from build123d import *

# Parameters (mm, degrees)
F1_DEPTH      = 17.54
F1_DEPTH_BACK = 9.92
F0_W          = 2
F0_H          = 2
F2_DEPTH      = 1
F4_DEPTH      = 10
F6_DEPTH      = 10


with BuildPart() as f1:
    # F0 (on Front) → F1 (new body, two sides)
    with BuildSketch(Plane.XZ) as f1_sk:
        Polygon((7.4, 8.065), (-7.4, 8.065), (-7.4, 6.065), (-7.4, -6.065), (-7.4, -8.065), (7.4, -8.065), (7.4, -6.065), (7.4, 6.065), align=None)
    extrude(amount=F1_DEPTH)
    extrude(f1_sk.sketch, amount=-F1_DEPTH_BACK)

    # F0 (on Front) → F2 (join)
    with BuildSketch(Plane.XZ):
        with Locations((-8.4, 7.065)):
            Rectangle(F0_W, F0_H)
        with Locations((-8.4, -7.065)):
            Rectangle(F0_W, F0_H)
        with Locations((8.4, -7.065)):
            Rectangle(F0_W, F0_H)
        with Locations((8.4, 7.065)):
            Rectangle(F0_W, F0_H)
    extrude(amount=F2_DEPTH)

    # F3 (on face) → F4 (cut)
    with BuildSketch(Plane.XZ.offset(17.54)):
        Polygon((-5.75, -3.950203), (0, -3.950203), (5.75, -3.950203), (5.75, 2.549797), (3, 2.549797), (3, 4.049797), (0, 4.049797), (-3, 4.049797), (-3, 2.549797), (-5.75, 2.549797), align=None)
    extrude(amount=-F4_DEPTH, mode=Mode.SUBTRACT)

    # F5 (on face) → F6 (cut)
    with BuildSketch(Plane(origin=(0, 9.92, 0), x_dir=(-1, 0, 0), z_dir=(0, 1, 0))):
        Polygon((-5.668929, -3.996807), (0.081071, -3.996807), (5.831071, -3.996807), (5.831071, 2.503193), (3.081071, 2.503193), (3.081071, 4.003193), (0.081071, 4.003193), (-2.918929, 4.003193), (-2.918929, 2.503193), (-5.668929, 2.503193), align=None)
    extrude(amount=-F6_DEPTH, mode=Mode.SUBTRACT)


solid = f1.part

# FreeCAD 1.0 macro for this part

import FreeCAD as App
import Part
import Sketcher
from FreeCAD import Vector


def add_polygon(sketch, points):
    """Adds a closed chain of lines whose ends are joined by coincident constraints."""
    first, n = sketch.GeometryCount, len(points)
    for a, b in zip(points, points[1:] + points[:1]):
        sketch.addGeometry(Part.LineSegment(App.Vector(*a, 0), App.Vector(*b, 0)), False)
    for i in range(n):
        sketch.addConstraint(Sketcher.Constraint("Coincident", first + i, 2, first + (i + 1) % n, 1))

doc = App.newDocument("Part")
params = doc.addObject("Spreadsheet::Sheet", "Params")
for row, (alias, value) in enumerate([
    ("sketch1_width", "14.8 mm"),
    ("sketch1_height", "16.13 mm"),
    ("pad1_length", "17.54 mm"),
    ("pad1_length2", "9.92 mm"),
    ("sketch2_width", "2 mm"),
    ("pad2_length", "1 mm"),
    ("sketch3_width", "6 mm"),
    ("sketch3_width2", "11.5 mm"),
    ("sketch3_height", "6.5 mm"),
    ("sketch3_height2", "1.5 mm"),
    ("pocket1_length", "10 mm"),
    ("sketch4_width", "6 mm"),
    ("sketch4_width2", "11.5 mm"),
    ("sketch4_height", "6.5 mm"),
    ("sketch4_height2", "1.5 mm"),
    ("pocket2_length", "10 mm"),
], start=1):
    params.set(f"A{row}", alias)
    params.set(f"B{row}", "=" + value)
    params.setAlias(f"B{row}", alias)

body = doc.addObject("PartDesign::Body", "Body")

# Sketch on XZ plane
sketch1 = body.newObject("Sketcher::SketchObject", "Sketch")
sketch1.AttachmentSupport = (doc.getObject("XZ_Plane"), [""])
sketch1.MapMode = "FlatFace"
add_polygon(sketch1, [(7.4, 8.065), (-7.4, 8.065), (-7.4, -8.065), (7.4, -8.065)])  # lines 0-3
sketch1.addConstraint([
    Sketcher.Constraint("Horizontal", 0),
    Sketcher.Constraint("Vertical", 1),
    Sketcher.Constraint("Horizontal", 2),
    Sketcher.Constraint("Vertical", 3),
    Sketcher.Constraint("Symmetric", 0, 2, 2, 2, -1, 1),
    Sketcher.Constraint("DistanceX", 0, 2, 0, 1, 14.8),
    Sketcher.Constraint("DistanceY", 1, 2, 1, 1, 16.13),
])
sketch1.setExpression("Constraints[9]", "Params.sketch1_width")
sketch1.setExpression("Constraints[10]", "Params.sketch1_height")
pad1 = body.newObject("PartDesign::Pad", "Pad")
pad1.Profile = sketch1
pad1.Type = "TwoLengths"
pad1.setExpression("Length", "Params.pad1_length")
pad1.setExpression("Length2", "Params.pad1_length2")

# Sketch on XZ plane
sketch2 = body.newObject("Sketcher::SketchObject", "Sketch001")
sketch2.AttachmentSupport = (doc.getObject("XZ_Plane"), [""])
sketch2.MapMode = "FlatFace"
add_polygon(sketch2, [(-9.4, 8.065), (-9.4, 6.065), (-7.4, 6.065), (-7.4, 8.065)])  # lines 0-3
add_polygon(sketch2, [(-9.4, -6.065), (-9.4, -8.065), (-7.4, -8.065), (-7.4, -6.065)])  # lines 4-7
add_polygon(sketch2, [(7.4, -6.065), (7.4, -8.065), (9.4, -8.065), (9.4, -6.065)])  # lines 8-11
add_polygon(sketch2, [(7.4, 8.065), (7.4, 6.065), (9.4, 6.065), (9.4, 8.065)])  # lines 12-15
sketch2.addConstraint([
    Sketcher.Constraint("Vertical", 0),
    Sketcher.Constraint("Horizontal", 1),
    Sketcher.Constraint("Vertical", 2),
    Sketcher.Constraint("Horizontal", 3),
    Sketcher.Constraint("Vertical", 4),
    Sketcher.Constraint("Horizontal", 5),
    Sketcher.Constraint("Vertical", 6),
    Sketcher.Constraint("Horizontal", 7),
    Sketcher.Constraint("Vertical", 8),
    Sketcher.Constraint("Horizontal", 9),
    Sketcher.Constraint("Vertical", 10),
    Sketcher.Constraint("Horizontal", 11),
    Sketcher.Constraint("Vertical", 12),
    Sketcher.Constraint("Horizontal", 13),
    Sketcher.Constraint("Vertical", 14),
    Sketcher.Constraint("Horizontal", 15),
    Sketcher.Constraint("Symmetric", 2, 2, 8, 2, -1, 1),
    Sketcher.Constraint("Symmetric", 0, 2, 10, 2, -1, 1),
    Sketcher.Constraint("Symmetric", 6, 2, 12, 2, -1, 1),
    Sketcher.Constraint("Symmetric", 4, 2, 14, 2, -1, 1),
    Sketcher.Constraint("Symmetric", 5, 2, 8, 2, -2),
    Sketcher.Constraint("Symmetric", 7, 2, 10, 2, -2),
    Sketcher.Constraint("Equal", 15, 0),
    Sketcher.Constraint("DistanceX", 1, 1, 1, 2, 2.0),
    Sketcher.Constraint("DistanceX", 0, 2, -1, 1, 9.4),
    Sketcher.Constraint("DistanceY", 4, 2, 0, 2, 14.13),
])
sketch2.setExpression("Constraints[39]", "Params.sketch2_width")
pad2 = body.newObject("PartDesign::Pad", "Pad001")
pad2.Profile = sketch2
pad2.setExpression("Length", "Params.pad2_length")

# Sketch on XZ plane
sketch3 = body.newObject("Sketcher::SketchObject", "Sketch002")
sketch3.AttachmentSupport = (doc.getObject("XZ_Plane"), [""])
sketch3.MapMode = "FlatFace"
sketch3.AttachmentOffset = App.Placement(Vector(0, 0, 17.54), App.Rotation())
add_polygon(sketch3, [(-5.75, -3.950203), (5.75, -3.950203), (5.75, 2.549797), (3, 2.549797), (3, 4.049797), (-3, 4.049797), (-3, 2.549797), (-5.75, 2.549797)])  # lines 0-7
sketch3.addConstraint([
    Sketcher.Constraint("Horizontal", 0),
    Sketcher.Constraint("Vertical", 1),
    Sketcher.Constraint("Horizontal", 2),
    Sketcher.Constraint("Vertical", 3),
    Sketcher.Constraint("Horizontal", 4),
    Sketcher.Constraint("Vertical", 5),
    Sketcher.Constraint("Horizontal", 6),
    Sketcher.Constraint("Vertical", 7),
    Sketcher.Constraint("Symmetric", 2, 2, 5, 2, -2),
    Sketcher.Constraint("Equal", 2, 6),
    Sketcher.Constraint("DistanceX", 4, 2, 4, 1, 6.0),
    Sketcher.Constraint("DistanceX", 0, 1, 0, 2, 11.5),
    Sketcher.Constraint("DistanceY", 1, 1, 1, 2, 6.5),
    Sketcher.Constraint("DistanceY", 3, 1, 3, 2, 1.5),
    Sketcher.Constraint("DistanceY", 0, 2, -1, 1, 3.950203),
])
sketch3.setExpression("Constraints[18]", "Params.sketch3_width")
sketch3.setExpression("Constraints[19]", "Params.sketch3_width2")
sketch3.setExpression("Constraints[20]", "Params.sketch3_height")
sketch3.setExpression("Constraints[21]", "Params.sketch3_height2")
pocket1 = body.newObject("PartDesign::Pocket", "Pocket")
pocket1.Profile = sketch3
pocket1.setExpression("Length", "Params.pocket1_length")

# Sketch on XZ plane
sketch4 = body.newObject("Sketcher::SketchObject", "Sketch003")
sketch4.AttachmentSupport = (doc.getObject("XZ_Plane"), [""])
sketch4.MapMode = "FlatFace"
sketch4.AttachmentOffset = App.Placement(Vector(0, 0, -9.92), App.Rotation())
add_polygon(sketch4, [(5.668929, -3.996807), (-5.831071, -3.996807), (-5.831071, 2.503193), (-3.081071, 2.503193), (-3.081071, 4.003193), (2.918929, 4.003193), (2.918929, 2.503193), (5.668929, 2.503193)])  # lines 0-7
sketch4.addConstraint([
    Sketcher.Constraint("Horizontal", 0),
    Sketcher.Constraint("Vertical", 1),
    Sketcher.Constraint("Horizontal", 2),
    Sketcher.Constraint("Vertical", 3),
    Sketcher.Constraint("Horizontal", 4),
    Sketcher.Constraint("Vertical", 5),
    Sketcher.Constraint("Horizontal", 6),
    Sketcher.Constraint("Vertical", 7),
    Sketcher.Constraint("Horizontal", 2, 2, 5, 2),
    Sketcher.Constraint("Equal", 2, 6),
    Sketcher.Constraint("DistanceX", 4, 1, 4, 2, 6.0),
    Sketcher.Constraint("DistanceX", 0, 2, 0, 1, 11.5),
    Sketcher.Constraint("DistanceY", 1, 1, 1, 2, 6.5),
    Sketcher.Constraint("DistanceY", 3, 1, 3, 2, 1.5),
    Sketcher.Constraint("DistanceX", 0, 2, -1, 1, 5.831071),
    Sketcher.Constraint("DistanceY", 0, 2, -1, 1, 3.996807),
])
sketch4.setExpression("Constraints[18]", "Params.sketch4_width")
sketch4.setExpression("Constraints[19]", "Params.sketch4_width2")
sketch4.setExpression("Constraints[20]", "Params.sketch4_height")
sketch4.setExpression("Constraints[21]", "Params.sketch4_height2")
pocket2 = body.newObject("PartDesign::Pocket", "Pocket001")
pocket2.Profile = sketch4
pocket2.setExpression("Length", "Params.pocket2_length")
pocket2.Reversed = True

doc.recompute()
